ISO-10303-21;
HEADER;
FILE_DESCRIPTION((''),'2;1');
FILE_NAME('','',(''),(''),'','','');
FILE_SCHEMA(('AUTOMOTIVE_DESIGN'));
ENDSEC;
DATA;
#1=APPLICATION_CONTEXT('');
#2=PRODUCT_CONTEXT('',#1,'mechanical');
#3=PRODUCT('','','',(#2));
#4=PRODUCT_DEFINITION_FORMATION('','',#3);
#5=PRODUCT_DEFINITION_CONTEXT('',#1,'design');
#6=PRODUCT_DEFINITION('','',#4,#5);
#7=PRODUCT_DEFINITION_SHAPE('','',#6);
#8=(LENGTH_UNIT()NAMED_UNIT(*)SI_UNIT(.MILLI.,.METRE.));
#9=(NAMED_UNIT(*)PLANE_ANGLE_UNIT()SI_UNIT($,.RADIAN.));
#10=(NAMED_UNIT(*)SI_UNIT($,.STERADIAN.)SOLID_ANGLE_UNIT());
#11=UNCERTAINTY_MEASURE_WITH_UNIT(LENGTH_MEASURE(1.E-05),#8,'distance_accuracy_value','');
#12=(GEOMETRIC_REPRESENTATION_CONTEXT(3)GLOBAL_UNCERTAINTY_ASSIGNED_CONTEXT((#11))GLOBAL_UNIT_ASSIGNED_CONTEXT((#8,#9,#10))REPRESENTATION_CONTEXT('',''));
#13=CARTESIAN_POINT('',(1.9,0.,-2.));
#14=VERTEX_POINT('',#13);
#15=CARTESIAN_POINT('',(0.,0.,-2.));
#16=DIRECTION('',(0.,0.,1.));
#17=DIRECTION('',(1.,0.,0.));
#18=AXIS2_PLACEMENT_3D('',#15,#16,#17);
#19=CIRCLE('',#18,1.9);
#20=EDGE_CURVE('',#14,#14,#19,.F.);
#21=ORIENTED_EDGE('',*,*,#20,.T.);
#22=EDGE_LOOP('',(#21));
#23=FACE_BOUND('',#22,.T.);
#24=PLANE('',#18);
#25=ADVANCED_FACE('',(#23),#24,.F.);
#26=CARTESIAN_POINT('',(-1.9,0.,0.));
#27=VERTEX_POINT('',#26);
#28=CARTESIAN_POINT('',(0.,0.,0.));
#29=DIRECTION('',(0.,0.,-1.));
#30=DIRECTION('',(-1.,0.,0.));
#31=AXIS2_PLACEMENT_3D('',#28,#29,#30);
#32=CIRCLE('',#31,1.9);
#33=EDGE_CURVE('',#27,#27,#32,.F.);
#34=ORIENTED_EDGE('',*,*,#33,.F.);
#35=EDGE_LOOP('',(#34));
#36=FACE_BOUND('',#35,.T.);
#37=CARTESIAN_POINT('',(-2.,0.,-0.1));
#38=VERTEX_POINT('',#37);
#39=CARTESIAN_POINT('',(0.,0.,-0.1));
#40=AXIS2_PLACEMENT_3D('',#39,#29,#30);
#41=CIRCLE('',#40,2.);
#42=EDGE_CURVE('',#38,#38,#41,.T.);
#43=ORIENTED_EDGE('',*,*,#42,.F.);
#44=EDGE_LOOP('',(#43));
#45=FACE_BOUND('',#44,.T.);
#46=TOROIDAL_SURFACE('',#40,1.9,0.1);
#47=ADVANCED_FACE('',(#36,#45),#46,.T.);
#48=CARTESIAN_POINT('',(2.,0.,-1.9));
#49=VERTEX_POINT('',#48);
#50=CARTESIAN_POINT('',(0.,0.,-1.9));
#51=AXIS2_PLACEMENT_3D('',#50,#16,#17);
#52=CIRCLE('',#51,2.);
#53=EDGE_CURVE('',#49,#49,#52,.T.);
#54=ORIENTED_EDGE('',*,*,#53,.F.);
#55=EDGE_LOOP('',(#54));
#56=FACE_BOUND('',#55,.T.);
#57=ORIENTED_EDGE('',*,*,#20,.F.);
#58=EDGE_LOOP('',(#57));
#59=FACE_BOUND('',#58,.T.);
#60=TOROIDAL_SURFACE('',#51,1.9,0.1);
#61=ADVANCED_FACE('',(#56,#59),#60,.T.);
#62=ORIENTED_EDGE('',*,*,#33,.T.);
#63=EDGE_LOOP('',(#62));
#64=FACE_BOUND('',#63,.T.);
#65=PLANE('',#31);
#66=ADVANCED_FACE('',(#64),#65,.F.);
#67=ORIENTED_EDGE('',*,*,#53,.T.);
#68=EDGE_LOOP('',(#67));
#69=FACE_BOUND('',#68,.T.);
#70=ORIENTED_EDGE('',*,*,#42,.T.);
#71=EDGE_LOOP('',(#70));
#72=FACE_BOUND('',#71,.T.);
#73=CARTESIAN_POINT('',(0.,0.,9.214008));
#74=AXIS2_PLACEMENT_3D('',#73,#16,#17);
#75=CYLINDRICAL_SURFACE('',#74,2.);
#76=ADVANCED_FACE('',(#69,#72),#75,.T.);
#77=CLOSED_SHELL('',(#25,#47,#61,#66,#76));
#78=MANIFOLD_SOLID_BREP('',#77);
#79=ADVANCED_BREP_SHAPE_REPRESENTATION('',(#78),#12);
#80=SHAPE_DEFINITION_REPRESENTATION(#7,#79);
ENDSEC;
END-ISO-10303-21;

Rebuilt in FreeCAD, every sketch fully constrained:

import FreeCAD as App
import Part
import Sketcher


def edges_at(feature, points):
    """Names of the edges that pass closest to the given points."""
    edges = feature.Shape.Edges
    near = lambda p: min(range(len(edges)), key=lambda i: edges[i].distToShape(Part.Vertex(*p))[0])
    return sorted({f"Edge{near(p) + 1}" for p in points})


def add_polygon(sketch, points):
    """Adds a closed chain of lines whose ends are joined by coincident constraints."""
    first, n = sketch.GeometryCount, len(points)
    for a, b in zip(points, points[1:] + points[:1]):
        sketch.addGeometry(Part.LineSegment(App.Vector(*a, 0), App.Vector(*b, 0)), False)
    for i in range(n):
        sketch.addConstraint(Sketcher.Constraint("Coincident", first + i, 2, first + (i + 1) % n, 1))

doc = App.newDocument("Part")
params = doc.addObject("Spreadsheet::Sheet", "Params")
for row, (alias, value) in enumerate([
    ("sketch1_width", "2 mm"),
    ("revolution_angle", "360 deg"),
    ("fillet_radius", "0.1 mm"),
], start=1):
    params.set(f"A{row}", alias)
    params.set(f"B{row}", "=" + value)
    params.setAlias(f"B{row}", alias)

body = doc.addObject("PartDesign::Body", "Body")

# Sketch on YZ plane
sketch1 = body.newObject("Sketcher::SketchObject", "Sketch")
sketch1.AttachmentSupport = (doc.getObject("YZ_Plane"), [""])
sketch1.MapMode = "FlatFace"
add_polygon(sketch1, [(2, 0), (0, 0), (0, -2), (2, -2)])  # lines 0-3
sketch1.addConstraint([
    Sketcher.Constraint("Horizontal", 0),
    Sketcher.Constraint("Vertical", 1),
    Sketcher.Constraint("Horizontal", 2),
    Sketcher.Constraint("Vertical", 3),
    Sketcher.Constraint("Coincident", 0, 2, -1, 1),
    Sketcher.Constraint("Equal", 2, 1),
    Sketcher.Constraint("DistanceX", 0, 2, 0, 1, 2.0),
])
sketch1.setExpression("Constraints[10]", "Params.sketch1_width")
revolution = body.newObject("PartDesign::Revolution", "Revolution")
revolution.Profile = sketch1
revolution.ReferenceAxis = (sketch1, ["V_Axis"])
revolution.setExpression("Angle", "Params.revolution_angle")
doc.recompute()

fillet = body.newObject("PartDesign::Fillet", "Fillet")
fillet.Base = (revolution, edges_at(revolution, [(-2, 0, -2), (-2, 0, 0)]))
fillet.setExpression("Radius", "Params.fillet_radius")

doc.recompute()
